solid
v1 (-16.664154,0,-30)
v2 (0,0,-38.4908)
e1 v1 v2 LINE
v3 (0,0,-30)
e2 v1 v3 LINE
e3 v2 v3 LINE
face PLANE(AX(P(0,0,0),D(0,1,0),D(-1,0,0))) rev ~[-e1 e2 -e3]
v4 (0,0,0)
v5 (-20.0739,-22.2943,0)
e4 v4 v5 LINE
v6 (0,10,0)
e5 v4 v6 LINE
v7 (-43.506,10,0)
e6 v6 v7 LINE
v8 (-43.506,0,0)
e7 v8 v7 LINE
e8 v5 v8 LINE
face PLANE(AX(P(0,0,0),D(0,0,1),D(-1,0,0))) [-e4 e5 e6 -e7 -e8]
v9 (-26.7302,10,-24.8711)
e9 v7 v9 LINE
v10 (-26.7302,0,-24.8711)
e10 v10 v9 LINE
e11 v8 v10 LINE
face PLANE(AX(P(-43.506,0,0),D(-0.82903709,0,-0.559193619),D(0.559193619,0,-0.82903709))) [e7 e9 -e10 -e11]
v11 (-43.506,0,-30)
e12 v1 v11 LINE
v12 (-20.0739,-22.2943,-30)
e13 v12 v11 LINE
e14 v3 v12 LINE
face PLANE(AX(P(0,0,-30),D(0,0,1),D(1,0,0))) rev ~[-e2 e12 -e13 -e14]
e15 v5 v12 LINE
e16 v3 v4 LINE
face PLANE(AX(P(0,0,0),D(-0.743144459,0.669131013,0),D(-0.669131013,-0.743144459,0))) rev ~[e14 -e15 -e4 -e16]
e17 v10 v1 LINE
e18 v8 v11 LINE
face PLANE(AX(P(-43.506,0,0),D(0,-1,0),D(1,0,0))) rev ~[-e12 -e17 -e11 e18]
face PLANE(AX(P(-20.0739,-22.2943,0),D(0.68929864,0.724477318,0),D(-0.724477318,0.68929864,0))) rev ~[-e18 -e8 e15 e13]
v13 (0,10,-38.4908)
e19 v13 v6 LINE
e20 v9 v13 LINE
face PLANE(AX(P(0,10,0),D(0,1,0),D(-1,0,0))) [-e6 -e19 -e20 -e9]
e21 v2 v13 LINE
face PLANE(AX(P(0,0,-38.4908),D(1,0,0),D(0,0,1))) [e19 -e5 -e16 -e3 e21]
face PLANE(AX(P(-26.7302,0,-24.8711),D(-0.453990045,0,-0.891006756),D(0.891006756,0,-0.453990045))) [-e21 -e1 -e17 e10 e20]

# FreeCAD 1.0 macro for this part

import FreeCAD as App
import Part
import Sketcher
Q = App.Units.Quantity

doc = App.newDocument("Part")
body = doc.addObject("PartDesign::Body", "Body")

sketch1 = body.newObject("Sketcher::SketchObject", "Sketch")
sketch1.AttachmentSupport = (doc.getObject("XZ_Plane"), [""])
sketch1.MapMode = "FlatFace"
sketch1.addGeometry(Part.LineSegment(App.Vector(-44, 0, 0), App.Vector(0, 0, 0)), False)
sketch1.addGeometry(Part.LineSegment(App.Vector(0, 0, 0), App.Vector(0, -38, 0)), False)
sketch1.addGeometry(Part.LineSegment(App.Vector(0, -38, 0), App.Vector(-27, -25, 0)), False)
sketch1.addGeometry(Part.LineSegment(App.Vector(-27, -25, 0), App.Vector(-44, 0, 0)), False)
sketch1.addConstraint(Sketcher.Constraint("Coincident", 0, 2, 1, 1))
sketch1.addConstraint(Sketcher.Constraint("Coincident", 1, 2, 2, 1))
sketch1.addConstraint(Sketcher.Constraint("Coincident", 2, 2, 3, 1))
sketch1.addConstraint(Sketcher.Constraint("Coincident", 3, 2, 0, 1))
sketch1.addConstraint(Sketcher.Constraint("Horizontal", 0))
sketch1.addConstraint(Sketcher.Constraint("Vertical", 1))
sketch1.addConstraint(Sketcher.Constraint("Coincident", 0, 2, -1, 1))
sketch1.addConstraint(Sketcher.Constraint("Equal", 2, 3))
sketch1.addConstraint(Sketcher.Constraint("Distance", 2, Q("30 mm")))
sketch1.addConstraint(Sketcher.Constraint("Angle", 2, Q("153 deg")))
sketch1.addConstraint(Sketcher.Constraint("Angle", 3, Q("124 deg")))
pad1 = body.newObject("PartDesign::Pad", "Pad")
pad1.Profile = sketch1
pad1.Length = 10
pad1.Reversed = True

sketch2 = body.newObject("Sketcher::SketchObject", "Sketch001")
sketch2.AttachmentSupport = (doc.getObject("XY_Plane"), [""])
sketch2.MapMode = "FlatFace"
sketch2.addGeometry(Part.LineSegment(App.Vector(-20, -22, 0), App.Vector(0, 0, 0)), False)
sketch2.addGeometry(Part.LineSegment(App.Vector(0, 0, 0), App.Vector(-44, 0, 0)), False)
sketch2.addGeometry(Part.LineSegment(App.Vector(-44, 0, 0), App.Vector(-20, -22, 0)), False)
sketch2.addConstraint(Sketcher.Constraint("Coincident", 0, 2, 1, 1))
sketch2.addConstraint(Sketcher.Constraint("Coincident", 1, 2, 2, 1))
sketch2.addConstraint(Sketcher.Constraint("Coincident", 2, 2, 0, 1))
sketch2.addConstraint(Sketcher.Constraint("Horizontal", 1))
sketch2.addConstraint(Sketcher.Constraint("Coincident", 0, 2, -1, 1))
sketch2.addConstraint(Sketcher.Constraint("Angle", 0, Q("48 deg")))
sketch2.addConstraint(Sketcher.Constraint("Distance", 0, Q("30 mm")))
sketch2.addConstraint(Sketcher.Constraint("DistanceX", 1, 2, 1, 1, Q("43.506 mm")))
pad2 = body.newObject("PartDesign::Pad", "Pad001")
pad2.Profile = sketch2
pad2.Length = 30
pad2.Reversed = True

doc.recompute()
